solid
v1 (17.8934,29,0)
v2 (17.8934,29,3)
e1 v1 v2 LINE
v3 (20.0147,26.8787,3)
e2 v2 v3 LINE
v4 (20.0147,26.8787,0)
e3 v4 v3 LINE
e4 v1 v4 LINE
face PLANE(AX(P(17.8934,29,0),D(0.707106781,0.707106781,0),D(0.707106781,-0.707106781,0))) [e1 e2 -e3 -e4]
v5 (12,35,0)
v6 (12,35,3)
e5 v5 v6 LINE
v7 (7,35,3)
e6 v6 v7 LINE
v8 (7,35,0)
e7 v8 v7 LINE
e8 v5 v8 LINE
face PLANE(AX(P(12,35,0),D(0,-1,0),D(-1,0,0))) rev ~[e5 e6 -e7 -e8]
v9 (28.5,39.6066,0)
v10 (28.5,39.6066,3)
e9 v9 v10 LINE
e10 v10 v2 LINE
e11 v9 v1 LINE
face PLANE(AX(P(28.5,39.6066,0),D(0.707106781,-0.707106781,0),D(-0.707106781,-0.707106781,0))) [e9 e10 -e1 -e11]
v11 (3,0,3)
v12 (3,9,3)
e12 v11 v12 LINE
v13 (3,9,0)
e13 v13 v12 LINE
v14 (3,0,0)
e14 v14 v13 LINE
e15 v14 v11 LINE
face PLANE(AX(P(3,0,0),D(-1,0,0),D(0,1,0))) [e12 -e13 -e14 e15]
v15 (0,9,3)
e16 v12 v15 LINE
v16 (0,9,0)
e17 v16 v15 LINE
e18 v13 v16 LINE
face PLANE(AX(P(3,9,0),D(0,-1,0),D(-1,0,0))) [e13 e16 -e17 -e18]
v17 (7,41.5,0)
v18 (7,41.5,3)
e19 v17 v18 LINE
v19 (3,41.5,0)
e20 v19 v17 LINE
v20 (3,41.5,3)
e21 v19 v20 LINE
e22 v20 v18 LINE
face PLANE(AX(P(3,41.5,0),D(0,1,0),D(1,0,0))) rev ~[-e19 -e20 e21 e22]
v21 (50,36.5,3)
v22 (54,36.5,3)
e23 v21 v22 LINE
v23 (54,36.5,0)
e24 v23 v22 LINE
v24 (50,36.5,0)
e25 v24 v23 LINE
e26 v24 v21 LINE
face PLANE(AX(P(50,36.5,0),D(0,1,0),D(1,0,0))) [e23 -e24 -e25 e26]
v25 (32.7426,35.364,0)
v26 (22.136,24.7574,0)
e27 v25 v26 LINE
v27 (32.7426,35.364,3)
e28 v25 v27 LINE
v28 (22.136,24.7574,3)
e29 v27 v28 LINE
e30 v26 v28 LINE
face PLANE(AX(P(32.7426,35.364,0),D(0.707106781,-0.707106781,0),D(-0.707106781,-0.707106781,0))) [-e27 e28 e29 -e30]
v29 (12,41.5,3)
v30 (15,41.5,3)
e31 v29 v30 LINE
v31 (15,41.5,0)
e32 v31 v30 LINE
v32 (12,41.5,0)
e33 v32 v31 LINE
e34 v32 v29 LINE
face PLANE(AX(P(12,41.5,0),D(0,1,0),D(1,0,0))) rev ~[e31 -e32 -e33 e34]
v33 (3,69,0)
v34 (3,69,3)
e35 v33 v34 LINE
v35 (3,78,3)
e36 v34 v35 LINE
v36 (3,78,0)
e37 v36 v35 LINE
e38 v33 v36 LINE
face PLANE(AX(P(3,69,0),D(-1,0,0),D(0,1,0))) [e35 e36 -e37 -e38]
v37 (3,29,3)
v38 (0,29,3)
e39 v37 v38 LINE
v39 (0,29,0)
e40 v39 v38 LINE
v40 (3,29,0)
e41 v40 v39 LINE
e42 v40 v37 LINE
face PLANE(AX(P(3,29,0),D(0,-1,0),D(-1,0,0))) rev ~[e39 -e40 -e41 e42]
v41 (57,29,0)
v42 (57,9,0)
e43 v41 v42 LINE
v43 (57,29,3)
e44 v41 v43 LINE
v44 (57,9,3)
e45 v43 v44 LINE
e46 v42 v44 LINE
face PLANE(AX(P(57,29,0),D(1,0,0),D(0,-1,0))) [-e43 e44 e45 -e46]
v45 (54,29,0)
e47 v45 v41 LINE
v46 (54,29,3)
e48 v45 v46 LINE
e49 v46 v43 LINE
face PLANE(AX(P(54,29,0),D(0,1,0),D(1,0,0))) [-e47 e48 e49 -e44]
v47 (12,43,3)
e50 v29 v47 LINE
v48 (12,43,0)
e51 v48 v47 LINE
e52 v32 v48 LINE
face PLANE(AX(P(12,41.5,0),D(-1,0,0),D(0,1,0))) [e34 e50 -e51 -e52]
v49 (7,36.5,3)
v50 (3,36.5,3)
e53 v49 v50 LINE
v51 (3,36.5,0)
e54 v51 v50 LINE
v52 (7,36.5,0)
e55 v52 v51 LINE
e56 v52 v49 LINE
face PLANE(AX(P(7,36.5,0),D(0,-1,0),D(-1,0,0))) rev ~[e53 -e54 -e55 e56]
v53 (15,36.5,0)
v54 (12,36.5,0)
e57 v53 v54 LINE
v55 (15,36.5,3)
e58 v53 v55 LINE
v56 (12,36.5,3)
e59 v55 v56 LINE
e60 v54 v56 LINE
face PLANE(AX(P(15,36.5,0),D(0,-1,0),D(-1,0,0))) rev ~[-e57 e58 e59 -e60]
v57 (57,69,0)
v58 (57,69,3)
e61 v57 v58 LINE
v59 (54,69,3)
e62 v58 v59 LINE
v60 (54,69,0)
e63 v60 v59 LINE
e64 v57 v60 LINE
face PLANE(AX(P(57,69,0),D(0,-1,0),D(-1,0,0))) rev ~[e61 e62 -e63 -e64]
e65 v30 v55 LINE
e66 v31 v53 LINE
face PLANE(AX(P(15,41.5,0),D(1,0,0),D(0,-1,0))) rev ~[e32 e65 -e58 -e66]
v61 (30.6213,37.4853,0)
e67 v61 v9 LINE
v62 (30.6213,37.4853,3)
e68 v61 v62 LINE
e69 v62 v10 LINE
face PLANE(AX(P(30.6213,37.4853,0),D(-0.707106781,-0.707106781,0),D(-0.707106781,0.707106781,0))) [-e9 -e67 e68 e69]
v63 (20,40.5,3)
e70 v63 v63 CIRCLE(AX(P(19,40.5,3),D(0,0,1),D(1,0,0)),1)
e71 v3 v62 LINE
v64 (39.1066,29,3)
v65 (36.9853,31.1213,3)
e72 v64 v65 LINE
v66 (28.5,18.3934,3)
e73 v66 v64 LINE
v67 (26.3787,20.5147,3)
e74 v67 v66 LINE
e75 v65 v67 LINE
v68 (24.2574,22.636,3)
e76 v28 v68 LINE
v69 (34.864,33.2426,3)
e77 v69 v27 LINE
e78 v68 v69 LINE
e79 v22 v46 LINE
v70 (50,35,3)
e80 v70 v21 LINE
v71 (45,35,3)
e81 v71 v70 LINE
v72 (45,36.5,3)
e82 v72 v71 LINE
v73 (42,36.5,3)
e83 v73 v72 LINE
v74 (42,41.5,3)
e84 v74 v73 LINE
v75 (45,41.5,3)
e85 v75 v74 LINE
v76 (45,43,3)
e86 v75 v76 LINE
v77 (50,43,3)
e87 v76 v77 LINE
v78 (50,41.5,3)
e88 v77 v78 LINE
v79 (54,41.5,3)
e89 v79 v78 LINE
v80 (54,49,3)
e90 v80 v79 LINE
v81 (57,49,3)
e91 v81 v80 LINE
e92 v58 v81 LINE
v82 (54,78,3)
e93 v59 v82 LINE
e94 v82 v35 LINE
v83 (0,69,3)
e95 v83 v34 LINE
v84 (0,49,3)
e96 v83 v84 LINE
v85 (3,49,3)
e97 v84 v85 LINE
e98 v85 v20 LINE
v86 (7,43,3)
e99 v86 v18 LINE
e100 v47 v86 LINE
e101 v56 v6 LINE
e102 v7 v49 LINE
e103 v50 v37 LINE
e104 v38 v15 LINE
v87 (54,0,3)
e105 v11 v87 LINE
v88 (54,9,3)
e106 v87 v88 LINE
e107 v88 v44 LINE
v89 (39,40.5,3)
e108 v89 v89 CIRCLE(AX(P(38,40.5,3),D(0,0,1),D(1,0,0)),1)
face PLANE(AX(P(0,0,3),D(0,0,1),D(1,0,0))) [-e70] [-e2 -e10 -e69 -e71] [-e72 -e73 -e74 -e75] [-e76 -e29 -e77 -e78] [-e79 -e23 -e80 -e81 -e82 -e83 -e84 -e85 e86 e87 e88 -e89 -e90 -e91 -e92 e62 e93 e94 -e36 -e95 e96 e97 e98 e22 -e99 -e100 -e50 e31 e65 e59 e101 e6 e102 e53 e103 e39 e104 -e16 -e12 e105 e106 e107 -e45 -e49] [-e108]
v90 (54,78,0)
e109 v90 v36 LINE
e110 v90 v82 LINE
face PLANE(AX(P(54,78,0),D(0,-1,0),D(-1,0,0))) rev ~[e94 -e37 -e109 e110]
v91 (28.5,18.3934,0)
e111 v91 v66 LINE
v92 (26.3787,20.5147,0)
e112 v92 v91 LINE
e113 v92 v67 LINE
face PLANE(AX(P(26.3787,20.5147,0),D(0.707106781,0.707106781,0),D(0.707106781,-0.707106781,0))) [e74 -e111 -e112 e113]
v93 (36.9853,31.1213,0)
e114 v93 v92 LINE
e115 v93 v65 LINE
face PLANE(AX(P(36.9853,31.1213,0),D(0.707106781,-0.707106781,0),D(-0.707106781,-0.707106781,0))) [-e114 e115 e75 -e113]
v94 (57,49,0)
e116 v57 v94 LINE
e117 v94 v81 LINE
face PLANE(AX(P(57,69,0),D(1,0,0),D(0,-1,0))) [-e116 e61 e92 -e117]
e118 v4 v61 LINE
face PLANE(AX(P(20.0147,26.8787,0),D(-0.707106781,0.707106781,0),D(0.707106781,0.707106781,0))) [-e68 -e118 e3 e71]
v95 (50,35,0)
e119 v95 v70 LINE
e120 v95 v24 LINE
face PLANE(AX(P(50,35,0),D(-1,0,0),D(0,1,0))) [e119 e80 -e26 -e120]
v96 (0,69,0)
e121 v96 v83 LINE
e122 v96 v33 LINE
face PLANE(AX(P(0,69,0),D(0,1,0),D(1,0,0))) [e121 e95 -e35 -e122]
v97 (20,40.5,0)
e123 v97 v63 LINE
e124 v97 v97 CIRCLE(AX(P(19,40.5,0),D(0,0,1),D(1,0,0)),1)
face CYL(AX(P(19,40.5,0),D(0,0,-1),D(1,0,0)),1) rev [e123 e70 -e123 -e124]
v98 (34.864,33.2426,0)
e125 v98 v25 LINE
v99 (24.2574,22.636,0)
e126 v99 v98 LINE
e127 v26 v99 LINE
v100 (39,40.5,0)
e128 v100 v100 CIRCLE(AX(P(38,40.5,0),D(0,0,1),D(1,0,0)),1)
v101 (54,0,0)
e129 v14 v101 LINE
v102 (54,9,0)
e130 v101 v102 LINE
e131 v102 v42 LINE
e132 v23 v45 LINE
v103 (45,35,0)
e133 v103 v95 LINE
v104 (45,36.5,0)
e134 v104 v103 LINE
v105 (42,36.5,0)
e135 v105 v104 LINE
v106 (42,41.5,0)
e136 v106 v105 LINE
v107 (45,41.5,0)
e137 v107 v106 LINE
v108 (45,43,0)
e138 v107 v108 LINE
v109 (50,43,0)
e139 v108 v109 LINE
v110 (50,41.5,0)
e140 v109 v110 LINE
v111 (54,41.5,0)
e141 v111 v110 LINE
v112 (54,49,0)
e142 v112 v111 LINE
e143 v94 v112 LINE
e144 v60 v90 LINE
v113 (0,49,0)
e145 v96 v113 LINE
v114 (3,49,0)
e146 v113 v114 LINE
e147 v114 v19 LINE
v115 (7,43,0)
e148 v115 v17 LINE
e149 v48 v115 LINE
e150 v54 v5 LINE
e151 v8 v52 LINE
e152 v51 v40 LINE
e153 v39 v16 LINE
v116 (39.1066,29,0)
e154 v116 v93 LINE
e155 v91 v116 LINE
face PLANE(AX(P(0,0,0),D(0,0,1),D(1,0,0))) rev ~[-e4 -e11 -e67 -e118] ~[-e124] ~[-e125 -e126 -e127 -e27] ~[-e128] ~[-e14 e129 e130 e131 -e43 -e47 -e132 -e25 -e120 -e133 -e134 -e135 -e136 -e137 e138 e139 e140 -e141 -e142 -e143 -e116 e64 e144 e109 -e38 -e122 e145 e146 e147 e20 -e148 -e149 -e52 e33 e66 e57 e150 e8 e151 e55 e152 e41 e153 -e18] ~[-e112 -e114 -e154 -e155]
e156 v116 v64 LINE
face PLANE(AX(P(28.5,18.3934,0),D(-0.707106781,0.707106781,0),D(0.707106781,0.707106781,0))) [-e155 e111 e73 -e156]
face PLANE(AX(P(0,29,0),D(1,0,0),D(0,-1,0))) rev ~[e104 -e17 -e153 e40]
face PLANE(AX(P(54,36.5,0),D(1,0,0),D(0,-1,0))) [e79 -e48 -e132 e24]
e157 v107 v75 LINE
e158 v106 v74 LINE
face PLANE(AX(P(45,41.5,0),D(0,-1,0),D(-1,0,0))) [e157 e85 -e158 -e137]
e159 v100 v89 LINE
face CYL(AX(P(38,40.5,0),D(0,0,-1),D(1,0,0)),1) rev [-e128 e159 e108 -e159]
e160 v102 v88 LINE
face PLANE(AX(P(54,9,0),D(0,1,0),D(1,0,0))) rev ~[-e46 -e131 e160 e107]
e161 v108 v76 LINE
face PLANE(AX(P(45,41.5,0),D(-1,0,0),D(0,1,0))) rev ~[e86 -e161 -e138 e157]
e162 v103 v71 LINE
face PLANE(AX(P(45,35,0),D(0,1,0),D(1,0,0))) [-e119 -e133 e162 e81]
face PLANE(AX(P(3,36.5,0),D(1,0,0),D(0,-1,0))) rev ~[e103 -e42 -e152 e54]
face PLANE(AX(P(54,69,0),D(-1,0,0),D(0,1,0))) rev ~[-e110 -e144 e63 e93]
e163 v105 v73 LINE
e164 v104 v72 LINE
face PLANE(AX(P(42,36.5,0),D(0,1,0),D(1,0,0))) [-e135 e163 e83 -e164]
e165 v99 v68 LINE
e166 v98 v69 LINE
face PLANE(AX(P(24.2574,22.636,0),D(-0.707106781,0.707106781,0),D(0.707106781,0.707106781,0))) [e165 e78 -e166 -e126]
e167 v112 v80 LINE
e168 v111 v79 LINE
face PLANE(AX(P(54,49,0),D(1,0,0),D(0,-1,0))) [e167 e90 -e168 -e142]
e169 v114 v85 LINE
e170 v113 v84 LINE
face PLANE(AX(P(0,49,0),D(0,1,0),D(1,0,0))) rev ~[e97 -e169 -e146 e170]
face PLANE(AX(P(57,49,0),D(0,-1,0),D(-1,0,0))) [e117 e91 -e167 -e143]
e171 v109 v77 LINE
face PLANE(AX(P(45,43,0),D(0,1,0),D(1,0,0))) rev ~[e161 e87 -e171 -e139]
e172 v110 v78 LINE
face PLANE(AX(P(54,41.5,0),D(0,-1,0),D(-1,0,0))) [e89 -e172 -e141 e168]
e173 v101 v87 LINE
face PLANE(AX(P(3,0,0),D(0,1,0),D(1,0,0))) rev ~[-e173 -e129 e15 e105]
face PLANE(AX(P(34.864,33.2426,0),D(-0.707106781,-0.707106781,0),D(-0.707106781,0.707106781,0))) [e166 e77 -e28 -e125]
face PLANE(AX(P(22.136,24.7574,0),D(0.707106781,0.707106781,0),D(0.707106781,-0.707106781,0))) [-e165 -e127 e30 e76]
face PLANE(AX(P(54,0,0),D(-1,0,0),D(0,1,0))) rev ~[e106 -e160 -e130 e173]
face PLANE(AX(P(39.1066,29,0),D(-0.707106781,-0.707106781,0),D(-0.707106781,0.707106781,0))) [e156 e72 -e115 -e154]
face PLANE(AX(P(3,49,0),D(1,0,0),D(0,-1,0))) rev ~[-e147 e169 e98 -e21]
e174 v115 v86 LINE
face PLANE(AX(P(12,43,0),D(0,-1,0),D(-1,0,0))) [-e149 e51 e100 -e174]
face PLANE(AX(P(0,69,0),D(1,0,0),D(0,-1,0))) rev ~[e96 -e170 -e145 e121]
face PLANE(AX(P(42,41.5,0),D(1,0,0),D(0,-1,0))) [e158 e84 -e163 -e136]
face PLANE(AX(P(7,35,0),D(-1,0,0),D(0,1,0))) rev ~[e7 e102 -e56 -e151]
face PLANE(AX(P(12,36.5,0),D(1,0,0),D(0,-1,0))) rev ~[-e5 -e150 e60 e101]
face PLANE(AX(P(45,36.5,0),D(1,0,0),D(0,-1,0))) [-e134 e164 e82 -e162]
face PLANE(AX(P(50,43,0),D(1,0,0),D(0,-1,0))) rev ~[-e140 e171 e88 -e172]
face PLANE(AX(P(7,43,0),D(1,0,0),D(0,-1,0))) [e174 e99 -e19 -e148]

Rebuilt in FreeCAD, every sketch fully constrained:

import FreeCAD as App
import Part
import Sketcher
Q = App.Units.Quantity


def add_polygon(sketch, points):
    """Adds a closed chain of lines whose ends are joined by coincident constraints."""
    first, n = sketch.GeometryCount, len(points)
    for a, b in zip(points, points[1:] + points[:1]):
        sketch.addGeometry(Part.LineSegment(App.Vector(*a, 0), App.Vector(*b, 0)), False)
    for i in range(n):
        sketch.addConstraint(Sketcher.Constraint("Coincident", first + i, 2, first + (i + 1) % n, 1))

doc = App.newDocument("Part")
body = doc.addObject("PartDesign::Body", "Body")

sketch1 = doc.addObject("Sketcher::SketchObject", "Sketch")
body.addObject(sketch1)
sketch1.AttachmentSupport = (doc.XY_Plane, [""])
sketch1.MapMode = "FlatFace"
add_polygon(sketch1, [(3, 69), (0, 69), (0, 49), (3, 49), (3, 41.5), (7, 41.5), (7, 43), (12, 43), (12, 41.5), (15, 41.5), (15, 36.5), (12, 36.5), (12, 35), (7, 35), (7, 36.5), (3, 36.5), (3, 29), (0, 29), (0, 9), (3, 9), (3, 0), (54, 0), (54, 9), (57, 9), (57, 29), (54, 29), (54, 36.5), (50, 36.5), (50, 35), (45, 35), (45, 36.5), (42, 36.5), (42, 41.5), (45, 41.5), (45, 43), (50, 43), (50, 41.5), (54, 41.5), (54, 49), (57, 49), (57, 69), (54, 69), (54, 78), (3, 78)])
add_polygon(sketch1, [(30.6213, 37.4853), (20.0147, 26.8787), (17.8934, 29), (28.5, 39.6066)])
add_polygon(sketch1, [(34.864, 33.2426), (24.2574, 22.636), (22.136, 24.7574), (32.7426, 35.364)])
add_polygon(sketch1, [(39.1066, 29), (28.5, 18.3934), (26.3787, 20.5147), (36.9853, 31.1213)])
sketch1.addGeometry(Part.Circle(App.Vector(19, 40.5, 0), App.Vector(0, 0, 1), 1), False)
sketch1.addGeometry(Part.Circle(App.Vector(38, 40.5, 0), App.Vector(0, 0, 1), 1), False)
sketch1.addConstraint(Sketcher.Constraint("Horizontal", 0))
sketch1.addConstraint(Sketcher.Constraint("Vertical", 1))
sketch1.addConstraint(Sketcher.Constraint("Horizontal", 2))
sketch1.addConstraint(Sketcher.Constraint("Vertical", 3))
sketch1.addConstraint(Sketcher.Constraint("Horizontal", 4))
sketch1.addConstraint(Sketcher.Constraint("Vertical", 5))
sketch1.addConstraint(Sketcher.Constraint("Horizontal", 6))
sketch1.addConstraint(Sketcher.Constraint("Vertical", 7))
sketch1.addConstraint(Sketcher.Constraint("Horizontal", 8))
sketch1.addConstraint(Sketcher.Constraint("Vertical", 9))
sketch1.addConstraint(Sketcher.Constraint("Horizontal", 10))
sketch1.addConstraint(Sketcher.Constraint("Vertical", 11))
sketch1.addConstraint(Sketcher.Constraint("Horizontal", 12))
sketch1.addConstraint(Sketcher.Constraint("Vertical", 13))
sketch1.addConstraint(Sketcher.Constraint("Horizontal", 14))
sketch1.addConstraint(Sketcher.Constraint("Vertical", 15))
sketch1.addConstraint(Sketcher.Constraint("Horizontal", 16))
sketch1.addConstraint(Sketcher.Constraint("Vertical", 17))
sketch1.addConstraint(Sketcher.Constraint("Horizontal", 18))
sketch1.addConstraint(Sketcher.Constraint("Vertical", 19))
sketch1.addConstraint(Sketcher.Constraint("Horizontal", 20))
sketch1.addConstraint(Sketcher.Constraint("Vertical", 21))
sketch1.addConstraint(Sketcher.Constraint("Horizontal", 22))
sketch1.addConstraint(Sketcher.Constraint("Vertical", 23))
sketch1.addConstraint(Sketcher.Constraint("Horizontal", 24))
sketch1.addConstraint(Sketcher.Constraint("Vertical", 25))
sketch1.addConstraint(Sketcher.Constraint("Horizontal", 26))
sketch1.addConstraint(Sketcher.Constraint("Vertical", 27))
sketch1.addConstraint(Sketcher.Constraint("Horizontal", 28))
sketch1.addConstraint(Sketcher.Constraint("Vertical", 29))
sketch1.addConstraint(Sketcher.Constraint("Horizontal", 30))
sketch1.addConstraint(Sketcher.Constraint("Vertical", 31))
sketch1.addConstraint(Sketcher.Constraint("Horizontal", 32))
sketch1.addConstraint(Sketcher.Constraint("Vertical", 33))
sketch1.addConstraint(Sketcher.Constraint("Horizontal", 34))
sketch1.addConstraint(Sketcher.Constraint("Vertical", 35))
sketch1.addConstraint(Sketcher.Constraint("Horizontal", 36))
sketch1.addConstraint(Sketcher.Constraint("Vertical", 37))
sketch1.addConstraint(Sketcher.Constraint("Horizontal", 38))
sketch1.addConstraint(Sketcher.Constraint("Vertical", 39))
sketch1.addConstraint(Sketcher.Constraint("Horizontal", 40))
sketch1.addConstraint(Sketcher.Constraint("Vertical", 41))
sketch1.addConstraint(Sketcher.Constraint("Horizontal", 42))
sketch1.addConstraint(Sketcher.Constraint("Vertical", 43))
sketch1.addConstraint(Sketcher.Constraint("Equal", 56, 57))
sketch1.addConstraint(Sketcher.Constraint("PointOnObject", 0, 2, -2))
sketch1.addConstraint(Sketcher.Constraint("PointOnObject", 16, 2, -2))
sketch1.addConstraint(Sketcher.Constraint("PointOnObject", 19, 2, -1))
sketch1.addConstraint(Sketcher.Constraint("Perpendicular", 44, 45))
sketch1.addConstraint(Sketcher.Constraint("Perpendicular", 45, 46))
sketch1.addConstraint(Sketcher.Constraint("Perpendicular", 46, 47))
sketch1.addConstraint(Sketcher.Constraint("Perpendicular", 47, 48))
sketch1.addConstraint(Sketcher.Constraint("Perpendicular", 48, 49))
sketch1.addConstraint(Sketcher.Constraint("Perpendicular", 49, 50))
sketch1.addConstraint(Sketcher.Constraint("Perpendicular", 50, 51))
sketch1.addConstraint(Sketcher.Constraint("Perpendicular", 51, 52))
sketch1.addConstraint(Sketcher.Constraint("Perpendicular", 52, 53))
sketch1.addConstraint(Sketcher.Constraint("Perpendicular", 53, 54))
sketch1.addConstraint(Sketcher.Constraint("Perpendicular", 54, 55))
sketch1.addConstraint(Sketcher.Constraint("Horizontal", 56, 3, 57, 3))
sketch1.addConstraint(Sketcher.Constraint("Horizontal", 4, 2, 7, 2))
sketch1.addConstraint(Sketcher.Constraint("Horizontal", 10, 2, 13, 2))
sketch1.addConstraint(Sketcher.Constraint("Horizontal", 18, 2, 21, 2))
sketch1.addConstraint(Sketcher.Constraint("Horizontal", 16, 2, 23, 2))
sketch1.addConstraint(Sketcher.Constraint("Horizontal", 14, 2, 25, 2))
sketch1.addConstraint(Sketcher.Constraint("Horizontal", 12, 2, 27, 2))
sketch1.addConstraint(Sketcher.Constraint("Horizontal", 26, 2, 29, 2))
sketch1.addConstraint(Sketcher.Constraint("Horizontal", 8, 2, 31, 2))
sketch1.addConstraint(Sketcher.Constraint("Horizontal", 6, 2, 33, 2))
sketch1.addConstraint(Sketcher.Constraint("Horizontal", 32, 2, 35, 2))
sketch1.addConstraint(Sketcher.Constraint("Horizontal", 2, 2, 37, 2))
sketch1.addConstraint(Sketcher.Constraint("Horizontal", 0, 2, 39, 2))
sketch1.addConstraint(Sketcher.Constraint("Horizontal", 24, 2, 45, 2))
sketch1.addConstraint(Sketcher.Constraint("Horizontal", 45, 2, 55, 2))
sketch1.addConstraint(Sketcher.Constraint("Vertical", 7, 2, 10, 2))
sketch1.addConstraint(Sketcher.Constraint("Vertical", 5, 2, 12, 2))
sketch1.addConstraint(Sketcher.Constraint("Vertical", 3, 2, 14, 2))
sketch1.addConstraint(Sketcher.Constraint("Vertical", 15, 2, 18, 2))
sketch1.addConstraint(Sketcher.Constraint("Vertical", 21, 2, 24, 2))
sketch1.addConstraint(Sketcher.Constraint("Vertical", 29, 2, 32, 2))
sketch1.addConstraint(Sketcher.Constraint("Vertical", 27, 2, 34, 2))
sketch1.addConstraint(Sketcher.Constraint("Vertical", 25, 2, 36, 2))
sketch1.addConstraint(Sketcher.Constraint("Vertical", 23, 2, 38, 2))
sketch1.addConstraint(Sketcher.Constraint("Vertical", 37, 2, 40, 2))
sketch1.addConstraint(Sketcher.Constraint("Vertical", 19, 2, 42, 2))
sketch1.addConstraint(Sketcher.Constraint("Vertical", 46, 2, 52, 2))
sketch1.addConstraint(Sketcher.Constraint("Equal", 2, 8))
sketch1.addConstraint(Sketcher.Constraint("Equal", 18, 22))
sketch1.addConstraint(Sketcher.Constraint("Equal", 14, 26))
sketch1.addConstraint(Sketcher.Constraint("Equal", 12, 28))
sketch1.addConstraint(Sketcher.Constraint("Equal", 24, 30))
sketch1.addConstraint(Sketcher.Constraint("Equal", 34, 9))
sketch1.addConstraint(Sketcher.Constraint("Equal", 7, 11))
sketch1.addConstraint(Sketcher.Constraint("Equal", 3, 15))
sketch1.addConstraint(Sketcher.Constraint("Equal", 1, 17))
sketch1.addConstraint(Sketcher.Constraint("Equal", 21, 41))
sketch1.addConstraint(Sketcher.Constraint("Equal", 46, 48))
sketch1.addConstraint(Sketcher.Constraint("Equal", 47, 49))
sketch1.addConstraint(Sketcher.Constraint("Equal", 50, 52))
sketch1.addConstraint(Sketcher.Constraint("Equal", 51, 53))
sketch1.addConstraint(Sketcher.Constraint("Diameter", 56, 2.0))
sketch1.addConstraint(Sketcher.Constraint("DistanceX", 0, 2, 0, 1, 3.0))
sketch1.addConstraint(Sketcher.Constraint("DistanceX", 4, 1, 4, 2, 4.0))
sketch1.addConstraint(Sketcher.Constraint("DistanceX", 6, 1, 6, 2, 5.0))
sketch1.addConstraint(Sketcher.Constraint("Distance", 45, 3.0))
sketch1.addConstraint(Sketcher.Constraint("DistanceY", 5, 2, 2, 2, 6.0))
sketch1.addConstraint(Sketcher.Constraint("DistanceX", 8, 2, 56, 3, 4.0))
sketch1.addConstraint(Sketcher.Constraint("DistanceY", 9, 2, 56, 3, 4.0))
sketch1.addConstraint(Sketcher.Constraint("DistanceX", 57, 3, 30, 2, 4.0))
sketch1.addConstraint(Sketcher.Constraint("DistanceX", 20, 1, 20, 2, 51.0))
sketch1.addConstraint(Sketcher.Constraint("DistanceY", 1, 2, 1, 1, 20.0))
sketch1.addConstraint(Sketcher.Constraint("DistanceY", 19, 2, 19, 1, 9.0))
sketch1.addConstraint(Sketcher.Constraint("Angle", 44, Q("-135 deg")))
sketch1.addConstraint(Sketcher.Constraint("Distance", 44, 15.0))
sketch1.addConstraint(Sketcher.Constraint("DistanceY", 3, 2, 3, 1, 7.5))
sketch1.addConstraint(Sketcher.Constraint("DistanceX", -1, 1, 46, 2, 28.5))
sketch1.addConstraint(Sketcher.Constraint("DistanceY", -1, 1, 48, 2, 22.636))
sketch1.addConstraint(Sketcher.Constraint("DistanceX", -1, 1, 49, 2, 22.136))
pad1 = doc.addObject("PartDesign::Pad", "Pad")
body.addObject(pad1)
pad1.Profile = sketch1
pad1.Length = 3

doc.recompute()
